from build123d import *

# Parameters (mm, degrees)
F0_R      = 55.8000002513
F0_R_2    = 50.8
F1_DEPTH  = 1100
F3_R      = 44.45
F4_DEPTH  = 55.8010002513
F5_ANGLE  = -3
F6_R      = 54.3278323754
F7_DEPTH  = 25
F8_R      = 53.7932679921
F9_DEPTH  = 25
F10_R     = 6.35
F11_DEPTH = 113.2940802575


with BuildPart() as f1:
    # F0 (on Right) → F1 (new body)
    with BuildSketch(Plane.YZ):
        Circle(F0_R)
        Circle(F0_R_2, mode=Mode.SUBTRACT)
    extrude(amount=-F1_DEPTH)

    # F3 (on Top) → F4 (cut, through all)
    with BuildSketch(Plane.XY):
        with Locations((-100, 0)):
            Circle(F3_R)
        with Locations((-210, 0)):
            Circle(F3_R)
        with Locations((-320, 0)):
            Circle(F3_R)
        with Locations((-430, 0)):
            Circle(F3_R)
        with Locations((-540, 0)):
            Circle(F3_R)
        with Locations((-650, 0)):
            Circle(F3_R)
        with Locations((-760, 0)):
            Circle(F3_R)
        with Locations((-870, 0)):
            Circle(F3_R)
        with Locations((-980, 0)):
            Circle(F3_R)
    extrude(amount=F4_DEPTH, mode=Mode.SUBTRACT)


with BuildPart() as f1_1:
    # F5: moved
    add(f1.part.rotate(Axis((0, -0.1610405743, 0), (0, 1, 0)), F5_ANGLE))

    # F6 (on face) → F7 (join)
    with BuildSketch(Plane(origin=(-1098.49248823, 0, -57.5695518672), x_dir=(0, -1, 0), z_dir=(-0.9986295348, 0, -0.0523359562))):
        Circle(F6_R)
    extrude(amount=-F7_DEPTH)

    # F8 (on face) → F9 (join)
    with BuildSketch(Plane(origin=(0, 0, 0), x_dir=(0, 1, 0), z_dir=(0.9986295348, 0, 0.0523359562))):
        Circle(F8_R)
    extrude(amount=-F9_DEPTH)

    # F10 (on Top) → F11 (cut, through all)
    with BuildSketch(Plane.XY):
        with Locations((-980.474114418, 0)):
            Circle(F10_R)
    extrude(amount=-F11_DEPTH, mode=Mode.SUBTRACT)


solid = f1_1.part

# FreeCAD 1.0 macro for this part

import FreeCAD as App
import Part
import Sketcher

V = App.Vector

doc = App.newDocument("Part")
body = doc.addObject("PartDesign::Body", "Body")

# Sketch on YZ plane
sketch1 = body.newObject("Sketcher::SketchObject", "Sketch")
sketch1.AttachmentSupport = (doc.getObject("YZ_Plane"), [""])
sketch1.MapMode = "FlatFace"
sketch1.addGeometry([
    Part.Circle(V(0, 0, 0), V(0, 0, 1), 56),
    Part.Circle(V(0, 0, 0), V(0, 0, 1), 51),
], False)
sketch1.addConstraint([
    Sketcher.Constraint("Coincident", 0, 3, -1, 1),
    Sketcher.Constraint("Coincident", 1, 3, -1, 1),
    Sketcher.Constraint("Diameter", 0, 111.600001),
    Sketcher.Constraint("Diameter", 1, 101.6),
])
pad1 = body.newObject("PartDesign::Pad", "Pad")
pad1.Profile = sketch1
pad1.Length = 1100
pad1.Reversed = True

# Sketch on XY plane
sketch2 = body.newObject("Sketcher::SketchObject", "Sketch001")
sketch2.AttachmentSupport = (doc.getObject("XY_Plane"), [""])
sketch2.MapMode = "FlatFace"
sketch2.addGeometry([
    Part.Circle(V(-100, 0, 0), V(0, 0, 1), 44),  # 0
    Part.Circle(V(-210, 0, 0), V(0, 0, 1), 44),  # 1
    Part.Circle(V(-320, 0, 0), V(0, 0, 1), 44),  # 2
    Part.Circle(V(-430, 0, 0), V(0, 0, 1), 44),  # 3
    Part.Circle(V(-540, 0, 0), V(0, 0, 1), 44),  # 4
    Part.Circle(V(-650, 0, 0), V(0, 0, 1), 44),  # 5
    Part.Circle(V(-760, 0, 0), V(0, 0, 1), 44),  # 6
    Part.Circle(V(-870, 0, 0), V(0, 0, 1), 44),  # 7
    Part.Circle(V(-980, 0, 0), V(0, 0, 1), 44),  # 8
], False)
sketch2.addConstraint([
    Sketcher.Constraint("Equal", 0, 1),
    Sketcher.Constraint("Equal", 1, 2),
    Sketcher.Constraint("Equal", 2, 3),
    Sketcher.Constraint("Equal", 3, 4),
    Sketcher.Constraint("Equal", 4, 5),
    Sketcher.Constraint("Equal", 5, 6),
    Sketcher.Constraint("Equal", 6, 7),
    Sketcher.Constraint("Equal", 7, 8),
    Sketcher.Constraint("PointOnObject", 0, 3, -1),
    Sketcher.Constraint("PointOnObject", 1, 3, -1),
    Sketcher.Constraint("PointOnObject", 2, 3, -1),
    Sketcher.Constraint("PointOnObject", 3, 3, -1),
    Sketcher.Constraint("PointOnObject", 4, 3, -1),
    Sketcher.Constraint("PointOnObject", 5, 3, -1),
    Sketcher.Constraint("PointOnObject", 6, 3, -1),
    Sketcher.Constraint("PointOnObject", 7, 3, -1),
    Sketcher.Constraint("PointOnObject", 8, 3, -1),
    Sketcher.Constraint("Diameter", 0, 88.9),
    Sketcher.Constraint("DistanceX", 0, 3, -1, 1, 100.0),
    Sketcher.Constraint("DistanceX", 1, 3, -1, 1, 210.0),
    Sketcher.Constraint("DistanceX", 2, 3, -1, 1, 320.0),
    Sketcher.Constraint("DistanceX", 3, 3, -1, 1, 430.0),
    Sketcher.Constraint("DistanceX", 4, 3, -1, 1, 540.0),
    Sketcher.Constraint("DistanceX", 5, 3, -1, 1, 650.0),
    Sketcher.Constraint("DistanceX", 6, 3, -1, 1, 760.0),
    Sketcher.Constraint("DistanceX", 7, 3, -1, 1, 870.0),
    Sketcher.Constraint("DistanceX", 8, 3, -1, 1, 980.0),
])
pocket1 = body.newObject("PartDesign::Pocket", "Pocket")
pocket1.Profile = sketch2
pocket1.Type = "ThroughAll"
pocket1.Reversed = True
body2 = doc.addObject("PartDesign::Body", "Body001")
doc.recompute()

body.Placement = App.Placement(V(0, 0, 0), App.Rotation(V(0, 1, 0), 357))
boolean = body2.newObject("PartDesign::Boolean", "Boolean")
boolean.Type = "Fuse"
boolean.addObjects([body])

# Sketch on an angled plane
sketch3 = body2.newObject("Sketcher::SketchObject", "Sketch002")
sketch3.Placement = App.Placement(V(-1098.492488, 0, -57.569552), App.Rotation(V(0, -1, 0), V(-0.052335956, 0, 0.998629535), V(-0.998629535, 0, -0.052335956), "ZXY"))
sketch3.addGeometry(Part.Circle(V(0, 0, 0), V(0, 0, 1), 54), False)
sketch3.addConstraint([
    Sketcher.Constraint("Coincident", 0, 3, -1, 1),
    Sketcher.Constraint("Diameter", 0, 108.655665),
])
pad2 = body2.newObject("PartDesign::Pad", "Pad001")
pad2.Profile = sketch3
pad2.Length = 25
pad2.Reversed = True

# Sketch on an angled plane
sketch4 = body2.newObject("Sketcher::SketchObject", "Sketch003")
sketch4.Placement = App.Placement(V(0, 0, 0), App.Rotation(V(0, 1, 0), V(-0.052335956, 0, 0.998629535), V(0.998629535, 0, 0.052335956), "ZXY"))
sketch4.addGeometry(Part.Circle(V(0, 0, 0), V(0, 0, 1), 54), False)
sketch4.addConstraint([
    Sketcher.Constraint("Coincident", 0, 3, -1, 1),
    Sketcher.Constraint("Diameter", 0, 107.586536),
])
pad3 = body2.newObject("PartDesign::Pad", "Pad002")
pad3.Profile = sketch4
pad3.Length = 25
pad3.Reversed = True

# Sketch on XY plane
sketch5 = body2.newObject("Sketcher::SketchObject", "Sketch004")
sketch5.AttachmentSupport = (doc.getObject("XY_Plane001"), [""])
sketch5.MapMode = "FlatFace"
sketch5.addGeometry(Part.Circle(V(-980, 0, 0), V(0, 0, 1), 6), False)
sketch5.addConstraint([
    Sketcher.Constraint("PointOnObject", 0, 3, -1),
    Sketcher.Constraint("Diameter", 0, 12.7),
    Sketcher.Constraint("DistanceX", 0, 3, -1, 1, 980.474114),
])
pocket2 = body2.newObject("PartDesign::Pocket", "Pocket001")
pocket2.Profile = sketch5
pocket2.Type = "ThroughAll"

doc.recompute()
